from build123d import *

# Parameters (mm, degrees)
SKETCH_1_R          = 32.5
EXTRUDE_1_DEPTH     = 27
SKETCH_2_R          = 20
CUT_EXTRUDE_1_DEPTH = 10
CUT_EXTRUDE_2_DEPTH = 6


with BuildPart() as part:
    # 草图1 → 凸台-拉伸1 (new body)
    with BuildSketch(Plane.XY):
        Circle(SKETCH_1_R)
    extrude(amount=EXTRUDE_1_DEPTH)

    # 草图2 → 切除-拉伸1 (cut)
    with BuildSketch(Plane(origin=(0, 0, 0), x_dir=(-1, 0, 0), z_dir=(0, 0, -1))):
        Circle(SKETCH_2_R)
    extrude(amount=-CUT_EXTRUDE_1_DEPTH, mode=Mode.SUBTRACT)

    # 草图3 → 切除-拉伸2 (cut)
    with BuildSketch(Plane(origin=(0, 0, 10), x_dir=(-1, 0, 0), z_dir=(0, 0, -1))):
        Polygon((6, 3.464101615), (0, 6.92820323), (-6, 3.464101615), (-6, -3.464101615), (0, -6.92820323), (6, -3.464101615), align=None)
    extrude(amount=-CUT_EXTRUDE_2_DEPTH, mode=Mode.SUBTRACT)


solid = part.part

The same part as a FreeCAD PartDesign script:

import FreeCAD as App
import Part
import Sketcher
from FreeCAD import Vector
Q = App.Units.Quantity

doc = App.newDocument("Part")
body = doc.addObject("PartDesign::Body", "Body")

# Sketch on XY plane
sketch1 = body.newObject("Sketcher::SketchObject", "Sketch")
sketch1.AttachmentSupport = (doc.getObject("XY_Plane"), [""])
sketch1.MapMode = "FlatFace"
sketch1.addGeometry(Part.Circle(Vector(0, 0, 0), Vector(0, 0, 1), 32.5), False)
sketch1.addConstraint([
    Sketcher.Constraint("Coincident", 0, 3, -1, 1),
    Sketcher.Constraint("Diameter", 0, Q("65 mm")),
])
pad1 = body.newObject("PartDesign::Pad", "Pad")
pad1.Profile = sketch1
pad1.Length = 27

# Sketch on XY plane
sketch2 = body.newObject("Sketcher::SketchObject", "Sketch001")
sketch2.AttachmentSupport = (doc.getObject("XY_Plane"), [""])
sketch2.MapMode = "FlatFace"
sketch2.addGeometry(Part.Circle(Vector(0, 0, 0), Vector(0, 0, 1), 20), False)
sketch2.addConstraint([
    Sketcher.Constraint("Coincident", 0, 3, -1, 1),
    Sketcher.Constraint("Diameter", 0, Q("40 mm")),
])
pocket1 = body.newObject("PartDesign::Pocket", "Pocket")
pocket1.Profile = sketch2
pocket1.Length = 10
pocket1.Reversed = True

# Sketch on XY plane
sketch3 = body.newObject("Sketcher::SketchObject", "Sketch002")
sketch3.AttachmentSupport = (doc.getObject("XY_Plane"), [""])
sketch3.MapMode = "FlatFace"
sketch3.AttachmentOffset = App.Placement(Vector(0, 0, 10), App.Rotation())
sketch3.addGeometry([
    Part.LineSegment(Vector(-6, 3.464102, 0), Vector(0, 6.928203, 0)),  # 0
    Part.LineSegment(Vector(0, 6.928203, 0), Vector(6, 3.464102, 0)),  # 1
    Part.LineSegment(Vector(6, 3.464102, 0), Vector(6, -3.464102, 0)),  # 2
    Part.LineSegment(Vector(6, -3.464102, 0), Vector(0, -6.928203, 0)),  # 3
    Part.LineSegment(Vector(0, -6.928203, 0), Vector(-6, -3.464102, 0)),  # 4
    Part.LineSegment(Vector(-6, -3.464102, 0), Vector(-6, 3.464102, 0)),  # 5
], False)
sketch3.addConstraint([
    Sketcher.Constraint("Coincident", 0, 2, 1, 1),
    Sketcher.Constraint("Coincident", 1, 2, 2, 1),
    Sketcher.Constraint("Coincident", 2, 2, 3, 1),
    Sketcher.Constraint("Coincident", 3, 2, 4, 1),
    Sketcher.Constraint("Coincident", 4, 2, 5, 1),
    Sketcher.Constraint("Coincident", 5, 2, 0, 1),
    Sketcher.Constraint("Vertical", 2),
    Sketcher.Constraint("Vertical", 5),
    Sketcher.Constraint("Symmetric", 0, 2, 3, 2, -1, 1),
    Sketcher.Constraint("Symmetric", 1, 2, 4, 2, -1, 1),
    Sketcher.Constraint("PointOnObject", 0, 2, -2),
    Sketcher.Constraint("Parallel", 0, 3),
    Sketcher.Constraint("Horizontal", 2, 2, 4, 2),
    Sketcher.Constraint("Angle", 0, Q("30 deg")),
    Sketcher.Constraint("DistanceX", -1, 1, 1, 2, Q("6 mm")),
    Sketcher.Constraint("DistanceY", -1, 1, 1, 2, Q("3.464102 mm")),
])
pocket2 = body.newObject("PartDesign::Pocket", "Pocket001")
pocket2.Profile = sketch3
pocket2.Length = 6
pocket2.Reversed = True

doc.recompute()
